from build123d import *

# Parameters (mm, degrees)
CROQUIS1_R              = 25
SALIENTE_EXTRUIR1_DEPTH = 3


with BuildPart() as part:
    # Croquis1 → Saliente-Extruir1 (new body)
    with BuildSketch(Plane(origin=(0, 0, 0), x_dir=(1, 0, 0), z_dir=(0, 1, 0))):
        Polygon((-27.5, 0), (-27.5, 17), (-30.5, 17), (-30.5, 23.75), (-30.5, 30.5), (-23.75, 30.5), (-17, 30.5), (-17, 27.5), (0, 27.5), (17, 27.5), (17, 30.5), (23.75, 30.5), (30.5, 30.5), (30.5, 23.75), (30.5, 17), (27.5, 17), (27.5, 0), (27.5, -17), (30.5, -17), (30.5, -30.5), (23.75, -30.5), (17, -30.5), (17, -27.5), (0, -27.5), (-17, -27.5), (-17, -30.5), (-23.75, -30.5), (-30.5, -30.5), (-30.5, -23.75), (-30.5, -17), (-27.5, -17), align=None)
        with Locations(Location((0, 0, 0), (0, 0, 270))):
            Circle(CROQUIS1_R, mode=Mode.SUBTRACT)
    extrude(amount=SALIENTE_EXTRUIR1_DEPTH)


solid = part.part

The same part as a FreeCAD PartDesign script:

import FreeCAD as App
import Part
import Sketcher

doc = App.newDocument("Part")
body = doc.addObject("PartDesign::Body", "Body")

sketch1 = body.newObject("Sketcher::SketchObject", "Sketch")
sketch1.AttachmentSupport = (doc.getObject("XZ_Plane"), [""])
sketch1.MapMode = "FlatFace"
sketch1.addGeometry(Part.LineSegment(App.Vector(-27.5, -17, 0), App.Vector(-27.5, 17, 0)), False)
sketch1.addGeometry(Part.LineSegment(App.Vector(-27.5, 17, 0), App.Vector(-30.5, 17, 0)), False)
sketch1.addGeometry(Part.LineSegment(App.Vector(-30.5, 17, 0), App.Vector(-30.5, 30.5, 0)), False)
sketch1.addGeometry(Part.LineSegment(App.Vector(-30.5, 30.5, 0), App.Vector(-17, 30.5, 0)), False)
sketch1.addGeometry(Part.LineSegment(App.Vector(-17, 30.5, 0), App.Vector(-17, 27.5, 0)), False)
sketch1.addGeometry(Part.LineSegment(App.Vector(-17, 27.5, 0), App.Vector(17, 27.5, 0)), False)
sketch1.addGeometry(Part.LineSegment(App.Vector(17, 27.5, 0), App.Vector(17, 30.5, 0)), False)
sketch1.addGeometry(Part.LineSegment(App.Vector(17, 30.5, 0), App.Vector(30.5, 30.5, 0)), False)
sketch1.addGeometry(Part.LineSegment(App.Vector(30.5, 30.5, 0), App.Vector(30.5, 17, 0)), False)
sketch1.addGeometry(Part.LineSegment(App.Vector(30.5, 17, 0), App.Vector(27.5, 17, 0)), False)
sketch1.addGeometry(Part.LineSegment(App.Vector(27.5, 17, 0), App.Vector(27.5, -17, 0)), False)
sketch1.addGeometry(Part.LineSegment(App.Vector(27.5, -17, 0), App.Vector(30.5, -17, 0)), False)
sketch1.addGeometry(Part.LineSegment(App.Vector(30.5, -17, 0), App.Vector(30.5, -30.5, 0)), False)
sketch1.addGeometry(Part.LineSegment(App.Vector(30.5, -30.5, 0), App.Vector(17, -30.5, 0)), False)
sketch1.addGeometry(Part.LineSegment(App.Vector(17, -30.5, 0), App.Vector(17, -27.5, 0)), False)
sketch1.addGeometry(Part.LineSegment(App.Vector(17, -27.5, 0), App.Vector(-17, -27.5, 0)), False)
sketch1.addGeometry(Part.LineSegment(App.Vector(-17, -27.5, 0), App.Vector(-17, -30.5, 0)), False)
sketch1.addGeometry(Part.LineSegment(App.Vector(-17, -30.5, 0), App.Vector(-30.5, -30.5, 0)), False)
sketch1.addGeometry(Part.LineSegment(App.Vector(-30.5, -30.5, 0), App.Vector(-30.5, -17, 0)), False)
sketch1.addGeometry(Part.LineSegment(App.Vector(-30.5, -17, 0), App.Vector(-27.5, -17, 0)), False)
sketch1.addGeometry(Part.Circle(App.Vector(0, 0, 0), App.Vector(0, 0, 1), 25), False)
sketch1.addConstraint(Sketcher.Constraint("Coincident", 0, 2, 1, 1))
sketch1.addConstraint(Sketcher.Constraint("Coincident", 1, 2, 2, 1))
sketch1.addConstraint(Sketcher.Constraint("Coincident", 2, 2, 3, 1))
sketch1.addConstraint(Sketcher.Constraint("Coincident", 3, 2, 4, 1))
sketch1.addConstraint(Sketcher.Constraint("Coincident", 4, 2, 5, 1))
sketch1.addConstraint(Sketcher.Constraint("Coincident", 5, 2, 6, 1))
sketch1.addConstraint(Sketcher.Constraint("Coincident", 6, 2, 7, 1))
sketch1.addConstraint(Sketcher.Constraint("Coincident", 7, 2, 8, 1))
sketch1.addConstraint(Sketcher.Constraint("Coincident", 8, 2, 9, 1))
sketch1.addConstraint(Sketcher.Constraint("Coincident", 9, 2, 10, 1))
sketch1.addConstraint(Sketcher.Constraint("Coincident", 10, 2, 11, 1))
sketch1.addConstraint(Sketcher.Constraint("Coincident", 11, 2, 12, 1))
sketch1.addConstraint(Sketcher.Constraint("Coincident", 12, 2, 13, 1))
sketch1.addConstraint(Sketcher.Constraint("Coincident", 13, 2, 14, 1))
sketch1.addConstraint(Sketcher.Constraint("Coincident", 14, 2, 15, 1))
sketch1.addConstraint(Sketcher.Constraint("Coincident", 15, 2, 16, 1))
sketch1.addConstraint(Sketcher.Constraint("Coincident", 16, 2, 17, 1))
sketch1.addConstraint(Sketcher.Constraint("Coincident", 17, 2, 18, 1))
sketch1.addConstraint(Sketcher.Constraint("Coincident", 18, 2, 19, 1))
sketch1.addConstraint(Sketcher.Constraint("Coincident", 19, 2, 0, 1))
sketch1.addConstraint(Sketcher.Constraint("Vertical", 0))
sketch1.addConstraint(Sketcher.Constraint("Horizontal", 1))
sketch1.addConstraint(Sketcher.Constraint("Vertical", 2))
sketch1.addConstraint(Sketcher.Constraint("Horizontal", 3))
sketch1.addConstraint(Sketcher.Constraint("Vertical", 4))
sketch1.addConstraint(Sketcher.Constraint("Horizontal", 5))
sketch1.addConstraint(Sketcher.Constraint("Vertical", 6))
sketch1.addConstraint(Sketcher.Constraint("Horizontal", 7))
sketch1.addConstraint(Sketcher.Constraint("Vertical", 8))
sketch1.addConstraint(Sketcher.Constraint("Horizontal", 9))
sketch1.addConstraint(Sketcher.Constraint("Vertical", 10))
sketch1.addConstraint(Sketcher.Constraint("Horizontal", 11))
sketch1.addConstraint(Sketcher.Constraint("Vertical", 12))
sketch1.addConstraint(Sketcher.Constraint("Horizontal", 13))
sketch1.addConstraint(Sketcher.Constraint("Vertical", 14))
sketch1.addConstraint(Sketcher.Constraint("Horizontal", 15))
sketch1.addConstraint(Sketcher.Constraint("Vertical", 16))
sketch1.addConstraint(Sketcher.Constraint("Horizontal", 17))
sketch1.addConstraint(Sketcher.Constraint("Vertical", 18))
sketch1.addConstraint(Sketcher.Constraint("Horizontal", 19))
sketch1.addConstraint(Sketcher.Constraint("Coincident", 20, 3, -1, 1))
sketch1.addConstraint(Sketcher.Constraint("Symmetric", 0, 2, 10, 2, -1, 1))
sketch1.addConstraint(Sketcher.Constraint("Symmetric", 2, 2, 12, 2, -1, 1))
sketch1.addConstraint(Sketcher.Constraint("Symmetric", 4, 2, 14, 2, -1, 1))
sketch1.addConstraint(Sketcher.Constraint("Symmetric", 6, 2, 16, 2, -1, 1))
sketch1.addConstraint(Sketcher.Constraint("Symmetric", 8, 2, 18, 2, -1, 1))
sketch1.addConstraint(Sketcher.Constraint("Symmetric", 3, 2, 6, 2, -2))
sketch1.addConstraint(Sketcher.Constraint("Symmetric", 1, 2, 8, 2, -2))
sketch1.addConstraint(Sketcher.Constraint("Equal", 15, 0))
sketch1.addConstraint(Sketcher.Constraint("Equal", 17, 2))
sketch1.addConstraint(Sketcher.Constraint("Equal", 19, 4))
sketch1.addConstraint(Sketcher.Constraint("Diameter", 20, 50.0))
sketch1.addConstraint(Sketcher.Constraint("DistanceX", 1, 2, 1, 1, 3.0))
sketch1.addConstraint(Sketcher.Constraint("DistanceX", 5, 1, 5, 2, 34.0))
sketch1.addConstraint(Sketcher.Constraint("DistanceX", 3, 1, 3, 2, 13.5))
pad1 = body.newObject("PartDesign::Pad", "Pad")
pad1.Profile = sketch1
pad1.Length = 3
pad1.Reversed = True

doc.recompute()
